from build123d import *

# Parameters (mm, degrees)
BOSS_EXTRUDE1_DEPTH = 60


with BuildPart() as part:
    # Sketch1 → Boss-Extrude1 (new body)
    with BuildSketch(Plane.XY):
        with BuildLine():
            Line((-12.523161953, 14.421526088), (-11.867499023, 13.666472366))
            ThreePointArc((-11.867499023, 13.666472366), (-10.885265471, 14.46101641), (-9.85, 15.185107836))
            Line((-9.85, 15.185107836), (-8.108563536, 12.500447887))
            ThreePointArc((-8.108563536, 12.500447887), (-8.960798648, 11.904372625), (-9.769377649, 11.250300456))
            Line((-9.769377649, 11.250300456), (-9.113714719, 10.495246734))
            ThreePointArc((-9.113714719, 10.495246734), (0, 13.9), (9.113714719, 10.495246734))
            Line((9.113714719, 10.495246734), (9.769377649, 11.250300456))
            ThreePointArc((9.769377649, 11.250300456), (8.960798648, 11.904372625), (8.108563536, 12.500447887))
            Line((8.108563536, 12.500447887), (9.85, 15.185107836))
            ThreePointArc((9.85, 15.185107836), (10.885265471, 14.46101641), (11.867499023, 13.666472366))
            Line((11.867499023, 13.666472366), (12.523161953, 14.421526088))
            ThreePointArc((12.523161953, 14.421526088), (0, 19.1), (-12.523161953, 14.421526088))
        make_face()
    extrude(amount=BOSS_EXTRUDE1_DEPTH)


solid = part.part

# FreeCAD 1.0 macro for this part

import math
import FreeCAD as App
import Part
import Sketcher

V = App.Vector
Q = App.Units.Quantity

doc = App.newDocument("Part")
body = doc.addObject("PartDesign::Body", "Body")

# Sketch on XY plane
sketch1 = body.newObject("Sketcher::SketchObject", "Sketch")
sketch1.AttachmentSupport = (doc.getObject("XY_Plane"), [""])
sketch1.MapMode = "FlatFace"
sketch1.addGeometry(Part.LineSegment(V(-12.5, 14.4, 0), V(-11.9, 13.7, 0)), False)
sketch1.addGeometry(Part.ArcOfCircle(Part.Circle(V(0, 0, 0), V(0, 0, 1), 18.1), math.radians(122.97), math.radians(130.97)), False)
sketch1.addGeometry(Part.LineSegment(V(-9.8, 15.2, 0), V(-8.1, 12.5, 0)), False)
sketch1.addGeometry(Part.ArcOfCircle(Part.Circle(V(0, 0, 0), V(0, 0, 1), 14.9), math.radians(122.97), math.radians(130.97)), False)
sketch1.addGeometry(Part.LineSegment(V(-9.8, 11.3, 0), V(-9.1, 10.5, 0)), False)
sketch1.addGeometry(Part.ArcOfCircle(Part.Circle(V(0, 0, 0), V(0, 0, 1), 13.9), math.radians(49), math.radians(131)), False)
sketch1.addGeometry(Part.LineSegment(V(9.1, 10.5, 0), V(9.8, 11.3, 0)), False)
sketch1.addGeometry(Part.ArcOfCircle(Part.Circle(V(0, 0, 0), V(0, 0, 1), 14.9), math.radians(49.03), math.radians(57.03)), False)
sketch1.addGeometry(Part.LineSegment(V(8.1, 12.5, 0), V(9.8, 15.2, 0)), False)
sketch1.addGeometry(Part.ArcOfCircle(Part.Circle(V(0, 0, 0), V(0, 0, 1), 18.1), math.radians(49.03), math.radians(57.03)), False)
sketch1.addGeometry(Part.LineSegment(V(11.9, 13.7, 0), V(12.5, 14.4, 0)), False)
sketch1.addGeometry(Part.ArcOfCircle(Part.Circle(V(0, 0, 0), V(0, 0, 1), 19.1), math.radians(49), math.radians(131)), False)
sketch1.addConstraint(Sketcher.Constraint("Coincident", 0, 2, 1, 2))
sketch1.addConstraint(Sketcher.Constraint("Coincident", 1, 1, 2, 1))
sketch1.addConstraint(Sketcher.Constraint("Coincident", 2, 2, 3, 1))
sketch1.addConstraint(Sketcher.Constraint("Coincident", 3, 2, 4, 1))
sketch1.addConstraint(Sketcher.Constraint("Coincident", 4, 2, 5, 2))
sketch1.addConstraint(Sketcher.Constraint("Coincident", 5, 1, 6, 1))
sketch1.addConstraint(Sketcher.Constraint("Coincident", 6, 2, 7, 1))
sketch1.addConstraint(Sketcher.Constraint("Coincident", 7, 2, 8, 1))
sketch1.addConstraint(Sketcher.Constraint("Coincident", 8, 2, 9, 2))
sketch1.addConstraint(Sketcher.Constraint("Coincident", 9, 1, 10, 1))
sketch1.addConstraint(Sketcher.Constraint("Coincident", 10, 2, 11, 1))
sketch1.addConstraint(Sketcher.Constraint("Coincident", 11, 2, 0, 1))
sketch1.addConstraint(Sketcher.Constraint("Coincident", 1, 3, -1, 1))
sketch1.addConstraint(Sketcher.Constraint("Coincident", 3, 3, -1, 1))
sketch1.addConstraint(Sketcher.Constraint("Coincident", 5, 3, -1, 1))
sketch1.addConstraint(Sketcher.Constraint("Coincident", 7, 3, -1, 1))
sketch1.addConstraint(Sketcher.Constraint("Coincident", 9, 3, -1, 1))
sketch1.addConstraint(Sketcher.Constraint("Coincident", 11, 3, -1, 1))
sketch1.addConstraint(Sketcher.Constraint("Equal", 3, 7))
sketch1.addConstraint(Sketcher.Constraint("Equal", 1, 9))
sketch1.addConstraint(Sketcher.Constraint("Parallel", 0, 4))
sketch1.addConstraint(Sketcher.Constraint("Parallel", 6, 10))
sketch1.addConstraint(Sketcher.Constraint("Horizontal", 4, 2, 5, 1))
sketch1.addConstraint(Sketcher.Constraint("Horizontal", 3, 2, 6, 2))
sketch1.addConstraint(Sketcher.Constraint("Horizontal", 2, 2, 7, 2))
sketch1.addConstraint(Sketcher.Constraint("Horizontal", 1, 1, 8, 2))
sketch1.addConstraint(Sketcher.Constraint("Horizontal", 0, 2, 9, 1))
sketch1.addConstraint(Sketcher.Constraint("Equal", 0, 4))
sketch1.addConstraint(Sketcher.Constraint("Radius", 1, Q("18.1 mm")))
sketch1.addConstraint(Sketcher.Constraint("Radius", 3, Q("14.9 mm")))
sketch1.addConstraint(Sketcher.Constraint("Radius", 5, Q("13.9 mm")))
sketch1.addConstraint(Sketcher.Constraint("DistanceX", 1, 1, -1, 1, Q("9.85 mm")))
sketch1.addConstraint(Sketcher.Constraint("DistanceX", 0, 2, -1, 1, Q("11.867499 mm")))
sketch1.addConstraint(Sketcher.Constraint("DistanceY", -1, 1, 3, 2, Q("11.2503 mm")))
sketch1.addConstraint(Sketcher.Constraint("DistanceY", 4, 2, 2, 2, Q("2.005201 mm")))
sketch1.addConstraint(Sketcher.Constraint("DistanceX", 7, 2, 10, 2, Q("4.414598 mm")))
pad1 = body.newObject("PartDesign::Pad", "Pad")
pad1.Profile = sketch1
pad1.Length = 60

doc.recompute()
